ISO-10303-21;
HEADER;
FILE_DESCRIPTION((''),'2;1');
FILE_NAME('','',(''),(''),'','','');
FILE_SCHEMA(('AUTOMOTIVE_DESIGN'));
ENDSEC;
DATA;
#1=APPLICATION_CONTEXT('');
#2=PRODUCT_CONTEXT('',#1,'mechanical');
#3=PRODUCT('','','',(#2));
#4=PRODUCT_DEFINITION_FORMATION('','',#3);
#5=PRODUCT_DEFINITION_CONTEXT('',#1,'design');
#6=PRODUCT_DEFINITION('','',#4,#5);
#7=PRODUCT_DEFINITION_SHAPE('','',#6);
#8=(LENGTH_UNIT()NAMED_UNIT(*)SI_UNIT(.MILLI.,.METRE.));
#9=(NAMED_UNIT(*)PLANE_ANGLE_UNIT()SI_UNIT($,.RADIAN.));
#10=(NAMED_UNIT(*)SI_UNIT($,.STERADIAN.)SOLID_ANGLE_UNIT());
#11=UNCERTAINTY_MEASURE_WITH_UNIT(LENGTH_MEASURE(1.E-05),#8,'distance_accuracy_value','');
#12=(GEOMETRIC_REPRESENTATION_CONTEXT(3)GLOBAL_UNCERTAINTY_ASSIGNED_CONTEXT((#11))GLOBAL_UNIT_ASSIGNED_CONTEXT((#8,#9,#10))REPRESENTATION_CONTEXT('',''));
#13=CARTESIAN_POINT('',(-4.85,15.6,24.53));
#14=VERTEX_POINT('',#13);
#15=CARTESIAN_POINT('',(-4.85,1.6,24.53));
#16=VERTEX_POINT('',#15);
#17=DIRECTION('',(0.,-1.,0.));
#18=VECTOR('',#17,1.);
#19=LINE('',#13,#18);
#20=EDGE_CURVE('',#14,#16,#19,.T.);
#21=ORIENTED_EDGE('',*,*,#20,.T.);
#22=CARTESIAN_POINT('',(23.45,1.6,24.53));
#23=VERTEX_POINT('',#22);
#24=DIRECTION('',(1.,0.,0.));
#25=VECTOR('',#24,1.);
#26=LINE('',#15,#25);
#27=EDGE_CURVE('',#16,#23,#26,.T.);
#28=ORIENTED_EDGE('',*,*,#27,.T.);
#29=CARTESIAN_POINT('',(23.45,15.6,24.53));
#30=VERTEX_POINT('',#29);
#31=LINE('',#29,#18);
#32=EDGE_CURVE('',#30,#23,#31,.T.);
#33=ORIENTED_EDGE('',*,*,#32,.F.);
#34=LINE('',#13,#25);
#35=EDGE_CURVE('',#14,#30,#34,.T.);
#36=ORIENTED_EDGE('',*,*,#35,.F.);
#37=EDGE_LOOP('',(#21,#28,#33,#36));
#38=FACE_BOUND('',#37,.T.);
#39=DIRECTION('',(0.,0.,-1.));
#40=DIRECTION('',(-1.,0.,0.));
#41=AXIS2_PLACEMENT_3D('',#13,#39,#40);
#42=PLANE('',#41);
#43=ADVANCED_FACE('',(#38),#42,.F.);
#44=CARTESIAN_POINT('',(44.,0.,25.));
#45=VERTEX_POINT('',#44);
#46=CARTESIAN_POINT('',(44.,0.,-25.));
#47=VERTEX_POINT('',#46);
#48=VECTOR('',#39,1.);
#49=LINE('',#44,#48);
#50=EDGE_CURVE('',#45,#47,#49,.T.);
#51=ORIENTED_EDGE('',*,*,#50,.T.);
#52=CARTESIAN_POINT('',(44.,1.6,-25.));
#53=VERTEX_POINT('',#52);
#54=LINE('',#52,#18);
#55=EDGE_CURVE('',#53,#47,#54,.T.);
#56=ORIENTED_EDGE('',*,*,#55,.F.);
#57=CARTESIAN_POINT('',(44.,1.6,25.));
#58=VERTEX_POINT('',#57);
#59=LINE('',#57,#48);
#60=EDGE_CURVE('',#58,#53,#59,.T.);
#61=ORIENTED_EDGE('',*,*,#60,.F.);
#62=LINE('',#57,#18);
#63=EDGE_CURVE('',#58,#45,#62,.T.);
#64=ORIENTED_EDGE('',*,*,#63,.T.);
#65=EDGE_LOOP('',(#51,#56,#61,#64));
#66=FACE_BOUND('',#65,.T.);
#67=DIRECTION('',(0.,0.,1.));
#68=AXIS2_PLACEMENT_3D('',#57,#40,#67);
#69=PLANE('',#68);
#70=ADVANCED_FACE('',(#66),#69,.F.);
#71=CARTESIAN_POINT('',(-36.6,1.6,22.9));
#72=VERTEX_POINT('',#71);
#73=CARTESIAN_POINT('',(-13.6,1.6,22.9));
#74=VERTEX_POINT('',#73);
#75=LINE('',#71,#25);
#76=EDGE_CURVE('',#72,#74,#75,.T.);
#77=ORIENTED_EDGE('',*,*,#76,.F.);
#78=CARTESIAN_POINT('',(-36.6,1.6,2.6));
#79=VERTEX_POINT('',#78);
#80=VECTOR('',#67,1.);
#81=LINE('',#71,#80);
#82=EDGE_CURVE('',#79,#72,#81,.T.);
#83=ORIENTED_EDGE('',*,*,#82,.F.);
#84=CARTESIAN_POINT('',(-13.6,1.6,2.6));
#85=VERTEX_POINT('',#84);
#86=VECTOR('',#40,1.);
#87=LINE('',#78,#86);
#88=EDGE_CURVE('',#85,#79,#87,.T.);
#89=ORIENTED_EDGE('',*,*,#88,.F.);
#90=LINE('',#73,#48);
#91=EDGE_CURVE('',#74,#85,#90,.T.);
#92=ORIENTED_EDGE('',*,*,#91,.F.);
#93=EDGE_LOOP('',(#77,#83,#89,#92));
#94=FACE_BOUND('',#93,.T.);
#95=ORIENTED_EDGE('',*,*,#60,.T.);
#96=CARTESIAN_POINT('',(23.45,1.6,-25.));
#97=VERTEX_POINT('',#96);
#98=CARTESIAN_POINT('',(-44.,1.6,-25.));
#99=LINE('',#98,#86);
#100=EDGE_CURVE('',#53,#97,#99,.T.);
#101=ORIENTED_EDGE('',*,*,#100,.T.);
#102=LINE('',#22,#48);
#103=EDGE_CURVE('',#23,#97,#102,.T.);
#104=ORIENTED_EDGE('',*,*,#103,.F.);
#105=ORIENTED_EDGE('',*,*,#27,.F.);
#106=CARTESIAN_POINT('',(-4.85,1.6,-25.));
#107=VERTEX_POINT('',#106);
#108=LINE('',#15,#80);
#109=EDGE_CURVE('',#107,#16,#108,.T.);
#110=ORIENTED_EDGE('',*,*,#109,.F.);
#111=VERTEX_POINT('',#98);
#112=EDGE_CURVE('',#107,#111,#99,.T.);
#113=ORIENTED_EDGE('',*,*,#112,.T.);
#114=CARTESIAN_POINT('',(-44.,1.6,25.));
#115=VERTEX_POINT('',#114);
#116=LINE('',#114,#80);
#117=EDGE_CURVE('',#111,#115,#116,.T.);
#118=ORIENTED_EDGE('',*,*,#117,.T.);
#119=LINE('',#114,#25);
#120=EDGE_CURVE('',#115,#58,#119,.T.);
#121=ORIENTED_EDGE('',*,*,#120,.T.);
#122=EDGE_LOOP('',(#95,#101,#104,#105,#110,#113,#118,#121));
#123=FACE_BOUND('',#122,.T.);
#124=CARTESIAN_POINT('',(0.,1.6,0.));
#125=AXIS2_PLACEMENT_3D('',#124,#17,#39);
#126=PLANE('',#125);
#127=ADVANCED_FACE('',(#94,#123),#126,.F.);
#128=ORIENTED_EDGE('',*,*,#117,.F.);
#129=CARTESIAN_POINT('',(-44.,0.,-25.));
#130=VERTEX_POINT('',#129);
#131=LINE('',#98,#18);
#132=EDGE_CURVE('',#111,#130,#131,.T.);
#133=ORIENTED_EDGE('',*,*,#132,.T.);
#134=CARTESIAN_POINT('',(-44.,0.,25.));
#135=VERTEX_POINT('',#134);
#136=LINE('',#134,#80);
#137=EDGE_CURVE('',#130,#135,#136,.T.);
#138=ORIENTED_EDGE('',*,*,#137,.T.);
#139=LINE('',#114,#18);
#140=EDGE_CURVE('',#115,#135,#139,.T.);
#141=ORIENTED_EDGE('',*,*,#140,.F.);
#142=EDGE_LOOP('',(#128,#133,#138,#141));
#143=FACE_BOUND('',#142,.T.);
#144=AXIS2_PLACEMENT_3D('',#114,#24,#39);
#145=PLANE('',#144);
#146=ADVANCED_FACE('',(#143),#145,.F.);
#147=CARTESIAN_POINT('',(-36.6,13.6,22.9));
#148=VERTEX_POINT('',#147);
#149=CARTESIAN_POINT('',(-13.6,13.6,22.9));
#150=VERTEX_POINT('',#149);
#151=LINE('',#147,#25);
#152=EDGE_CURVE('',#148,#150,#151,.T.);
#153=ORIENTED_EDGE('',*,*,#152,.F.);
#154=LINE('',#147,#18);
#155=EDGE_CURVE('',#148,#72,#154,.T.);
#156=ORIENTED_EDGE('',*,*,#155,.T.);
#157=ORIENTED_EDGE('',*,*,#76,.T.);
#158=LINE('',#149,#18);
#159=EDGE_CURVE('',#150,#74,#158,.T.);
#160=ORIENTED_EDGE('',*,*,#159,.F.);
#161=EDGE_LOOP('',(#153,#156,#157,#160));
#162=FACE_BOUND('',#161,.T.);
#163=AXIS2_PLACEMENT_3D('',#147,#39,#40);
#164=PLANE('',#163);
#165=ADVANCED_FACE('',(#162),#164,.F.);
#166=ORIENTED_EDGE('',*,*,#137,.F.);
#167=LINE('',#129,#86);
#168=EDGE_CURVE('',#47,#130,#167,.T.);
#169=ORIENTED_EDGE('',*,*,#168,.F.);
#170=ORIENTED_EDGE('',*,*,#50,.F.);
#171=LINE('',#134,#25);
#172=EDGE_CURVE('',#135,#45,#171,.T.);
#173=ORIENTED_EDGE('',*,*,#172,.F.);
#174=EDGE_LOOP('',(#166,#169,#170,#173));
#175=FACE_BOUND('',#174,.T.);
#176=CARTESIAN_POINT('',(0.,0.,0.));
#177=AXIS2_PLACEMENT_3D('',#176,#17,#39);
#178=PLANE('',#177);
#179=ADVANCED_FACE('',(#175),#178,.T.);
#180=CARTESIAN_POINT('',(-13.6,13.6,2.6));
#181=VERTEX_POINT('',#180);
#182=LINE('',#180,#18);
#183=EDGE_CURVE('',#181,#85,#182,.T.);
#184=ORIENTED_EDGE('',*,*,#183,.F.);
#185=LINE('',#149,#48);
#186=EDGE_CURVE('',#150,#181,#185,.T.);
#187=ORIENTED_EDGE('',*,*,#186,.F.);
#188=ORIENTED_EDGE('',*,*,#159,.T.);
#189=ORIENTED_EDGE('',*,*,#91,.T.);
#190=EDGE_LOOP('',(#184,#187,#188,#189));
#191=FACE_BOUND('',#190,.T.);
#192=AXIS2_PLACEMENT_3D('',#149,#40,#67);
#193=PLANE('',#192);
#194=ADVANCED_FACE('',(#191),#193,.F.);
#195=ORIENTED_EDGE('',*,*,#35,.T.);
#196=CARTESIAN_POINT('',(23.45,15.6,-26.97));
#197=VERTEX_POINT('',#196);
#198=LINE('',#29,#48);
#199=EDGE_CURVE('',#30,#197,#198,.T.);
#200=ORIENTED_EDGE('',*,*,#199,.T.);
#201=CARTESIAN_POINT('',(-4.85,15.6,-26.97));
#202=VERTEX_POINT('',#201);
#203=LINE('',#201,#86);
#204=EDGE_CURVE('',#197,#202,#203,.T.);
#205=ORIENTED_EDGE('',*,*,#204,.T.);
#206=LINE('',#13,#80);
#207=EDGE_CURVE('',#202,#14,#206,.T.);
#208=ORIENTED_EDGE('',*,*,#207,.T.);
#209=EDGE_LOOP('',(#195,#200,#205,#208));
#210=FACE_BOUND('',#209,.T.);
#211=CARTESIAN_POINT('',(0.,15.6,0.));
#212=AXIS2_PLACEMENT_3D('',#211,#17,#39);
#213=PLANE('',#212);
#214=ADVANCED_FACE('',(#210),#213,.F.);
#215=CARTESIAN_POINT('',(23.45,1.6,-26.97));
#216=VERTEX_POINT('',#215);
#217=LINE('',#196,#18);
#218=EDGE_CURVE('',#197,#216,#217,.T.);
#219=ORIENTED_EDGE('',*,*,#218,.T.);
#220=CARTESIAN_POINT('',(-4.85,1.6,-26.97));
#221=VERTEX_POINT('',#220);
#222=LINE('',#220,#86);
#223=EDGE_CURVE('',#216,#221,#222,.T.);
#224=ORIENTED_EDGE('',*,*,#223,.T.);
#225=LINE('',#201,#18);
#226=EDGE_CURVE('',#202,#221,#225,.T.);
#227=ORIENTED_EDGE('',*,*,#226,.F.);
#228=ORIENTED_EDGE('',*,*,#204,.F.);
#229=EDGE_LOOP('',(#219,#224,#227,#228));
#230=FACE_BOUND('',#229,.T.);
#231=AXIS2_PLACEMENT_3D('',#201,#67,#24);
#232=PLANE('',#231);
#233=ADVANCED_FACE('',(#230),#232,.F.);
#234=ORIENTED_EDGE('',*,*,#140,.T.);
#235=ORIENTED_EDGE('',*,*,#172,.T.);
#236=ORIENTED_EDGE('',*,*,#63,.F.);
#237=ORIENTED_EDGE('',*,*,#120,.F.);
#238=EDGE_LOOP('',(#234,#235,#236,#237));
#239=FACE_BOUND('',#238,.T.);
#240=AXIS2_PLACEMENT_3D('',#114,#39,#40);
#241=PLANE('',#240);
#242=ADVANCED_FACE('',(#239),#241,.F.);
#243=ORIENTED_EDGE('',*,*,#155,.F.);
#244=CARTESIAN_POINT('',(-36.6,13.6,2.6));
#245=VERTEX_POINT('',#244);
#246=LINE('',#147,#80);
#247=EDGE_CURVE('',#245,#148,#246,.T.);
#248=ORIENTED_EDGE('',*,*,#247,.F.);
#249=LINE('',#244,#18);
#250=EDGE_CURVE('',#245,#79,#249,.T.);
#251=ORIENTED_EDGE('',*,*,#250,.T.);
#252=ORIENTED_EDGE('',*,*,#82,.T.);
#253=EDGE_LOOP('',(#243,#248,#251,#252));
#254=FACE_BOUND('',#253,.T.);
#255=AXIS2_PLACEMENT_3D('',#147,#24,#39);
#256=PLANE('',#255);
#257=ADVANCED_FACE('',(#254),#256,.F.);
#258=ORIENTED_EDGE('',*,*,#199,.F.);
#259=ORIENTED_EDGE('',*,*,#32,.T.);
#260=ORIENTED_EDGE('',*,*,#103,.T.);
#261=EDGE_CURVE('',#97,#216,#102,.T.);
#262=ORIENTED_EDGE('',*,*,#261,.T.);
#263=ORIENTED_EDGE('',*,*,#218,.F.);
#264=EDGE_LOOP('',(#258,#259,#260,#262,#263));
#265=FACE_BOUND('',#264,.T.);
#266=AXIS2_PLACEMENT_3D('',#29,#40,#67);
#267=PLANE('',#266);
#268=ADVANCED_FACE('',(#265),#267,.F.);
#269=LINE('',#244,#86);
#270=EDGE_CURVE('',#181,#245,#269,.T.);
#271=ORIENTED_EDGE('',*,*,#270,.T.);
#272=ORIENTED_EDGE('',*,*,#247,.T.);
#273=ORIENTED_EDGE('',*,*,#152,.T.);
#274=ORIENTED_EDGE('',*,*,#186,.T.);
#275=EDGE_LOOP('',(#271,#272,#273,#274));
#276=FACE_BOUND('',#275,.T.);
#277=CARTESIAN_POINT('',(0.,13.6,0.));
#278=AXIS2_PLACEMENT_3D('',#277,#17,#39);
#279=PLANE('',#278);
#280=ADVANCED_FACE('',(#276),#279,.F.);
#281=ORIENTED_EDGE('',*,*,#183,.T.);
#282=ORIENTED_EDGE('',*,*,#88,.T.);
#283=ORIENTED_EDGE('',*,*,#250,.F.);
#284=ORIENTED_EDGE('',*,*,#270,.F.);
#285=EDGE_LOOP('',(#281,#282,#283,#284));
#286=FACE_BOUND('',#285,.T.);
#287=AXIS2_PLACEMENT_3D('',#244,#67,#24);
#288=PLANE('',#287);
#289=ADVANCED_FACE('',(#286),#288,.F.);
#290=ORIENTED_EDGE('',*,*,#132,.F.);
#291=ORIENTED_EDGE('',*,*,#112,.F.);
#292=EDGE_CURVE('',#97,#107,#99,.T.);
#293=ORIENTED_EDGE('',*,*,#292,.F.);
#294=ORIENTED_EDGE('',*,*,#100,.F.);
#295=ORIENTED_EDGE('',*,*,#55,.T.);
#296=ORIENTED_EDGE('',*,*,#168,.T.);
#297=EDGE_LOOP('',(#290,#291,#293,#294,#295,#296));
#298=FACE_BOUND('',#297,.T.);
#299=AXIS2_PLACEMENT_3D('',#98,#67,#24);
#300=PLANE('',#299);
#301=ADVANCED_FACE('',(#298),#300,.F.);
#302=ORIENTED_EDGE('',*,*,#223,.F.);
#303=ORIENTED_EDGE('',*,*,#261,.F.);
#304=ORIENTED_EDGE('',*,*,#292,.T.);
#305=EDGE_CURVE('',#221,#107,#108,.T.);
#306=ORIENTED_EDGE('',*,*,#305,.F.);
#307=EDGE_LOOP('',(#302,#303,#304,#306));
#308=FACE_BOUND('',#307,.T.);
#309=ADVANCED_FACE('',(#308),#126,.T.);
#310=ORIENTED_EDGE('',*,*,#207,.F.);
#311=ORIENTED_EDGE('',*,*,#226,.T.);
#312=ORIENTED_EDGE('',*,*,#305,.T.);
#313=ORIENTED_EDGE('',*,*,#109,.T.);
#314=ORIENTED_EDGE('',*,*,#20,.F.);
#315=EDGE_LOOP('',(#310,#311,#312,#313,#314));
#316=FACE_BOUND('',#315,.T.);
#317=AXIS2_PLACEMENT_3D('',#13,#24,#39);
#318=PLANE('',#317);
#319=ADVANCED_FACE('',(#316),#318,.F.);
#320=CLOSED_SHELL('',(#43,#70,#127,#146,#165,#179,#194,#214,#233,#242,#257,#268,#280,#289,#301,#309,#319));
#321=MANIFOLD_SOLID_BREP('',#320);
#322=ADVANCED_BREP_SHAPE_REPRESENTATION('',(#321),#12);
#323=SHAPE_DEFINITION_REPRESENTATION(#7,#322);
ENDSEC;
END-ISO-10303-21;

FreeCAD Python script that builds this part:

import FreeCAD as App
import Part
import Sketcher
Q = App.Units.Quantity

doc = App.newDocument("Part")
body = doc.addObject("PartDesign::Body", "Body")

# Sketch on XZ plane
sketch1 = body.newObject("Sketcher::SketchObject", "Sketch")
sketch1.AttachmentSupport = (doc.getObject("XZ_Plane"), [""])
sketch1.MapMode = "FlatFace"
sketch1.addGeometry([
    Part.LineSegment(App.Vector(-44, -25, 0), App.Vector(-44, 25, 0)),
    Part.LineSegment(App.Vector(-44, 25, 0), App.Vector(44, 25, 0)),
    Part.LineSegment(App.Vector(44, 25, 0), App.Vector(44, -25, 0)),
    Part.LineSegment(App.Vector(44, -25, 0), App.Vector(-44, -25, 0)),
], False)
sketch1.addConstraint([
    Sketcher.Constraint("Coincident", 0, 2, 1, 1),
    Sketcher.Constraint("Coincident", 1, 2, 2, 1),
    Sketcher.Constraint("Coincident", 2, 2, 3, 1),
    Sketcher.Constraint("Coincident", 3, 2, 0, 1),
    Sketcher.Constraint("Vertical", 0),
    Sketcher.Constraint("Horizontal", 1),
    Sketcher.Constraint("Vertical", 2),
    Sketcher.Constraint("Horizontal", 3),
    Sketcher.Constraint("Symmetric", 0, 2, 2, 2, -1, 1),
    Sketcher.Constraint("DistanceX", 1, 1, 1, 2, Q("88 mm")),
    Sketcher.Constraint("DistanceY", 0, 1, 0, 2, Q("50 mm")),
])
pad1 = body.newObject("PartDesign::Pad", "Pad")
pad1.Profile = sketch1
pad1.Length = 1.6
pad1.Reversed = True

# Sketch on XZ plane
sketch2 = body.newObject("Sketcher::SketchObject", "Sketch001")
sketch2.AttachmentSupport = (doc.getObject("XZ_Plane"), [""])
sketch2.MapMode = "FlatFace"
sketch2.AttachmentOffset = App.Placement(App.Vector(0, 0, -1.6), App.Rotation())
sketch2.addGeometry([
    Part.LineSegment(App.Vector(-4.85, -26.97, 0), App.Vector(-4.85, 24.53, 0)),
    Part.LineSegment(App.Vector(-4.85, 24.53, 0), App.Vector(23.45, 24.53, 0)),
    Part.LineSegment(App.Vector(23.45, 24.53, 0), App.Vector(23.45, -26.97, 0)),
    Part.LineSegment(App.Vector(23.45, -26.97, 0), App.Vector(-4.85, -26.97, 0)),
], False)
sketch2.addConstraint([
    Sketcher.Constraint("Coincident", 0, 2, 1, 1),
    Sketcher.Constraint("Coincident", 1, 2, 2, 1),
    Sketcher.Constraint("Coincident", 2, 2, 3, 1),
    Sketcher.Constraint("Coincident", 3, 2, 0, 1),
    Sketcher.Constraint("Vertical", 0),
    Sketcher.Constraint("Horizontal", 1),
    Sketcher.Constraint("Vertical", 2),
    Sketcher.Constraint("Horizontal", 3),
    Sketcher.Constraint("DistanceX", 1, 1, 1, 2, Q("28.3 mm")),
    Sketcher.Constraint("DistanceY", 0, 1, 0, 2, Q("51.5 mm")),
    Sketcher.Constraint("DistanceX", 0, 2, -1, 1, Q("4.85 mm")),
    Sketcher.Constraint("DistanceY", -1, 1, 0, 2, Q("24.53 mm")),
])
pad2 = body.newObject("PartDesign::Pad", "Pad001")
pad2.Profile = sketch2
pad2.Length = 14
pad2.Reversed = True

# Sketch on XZ plane
sketch3 = body.newObject("Sketcher::SketchObject", "Sketch002")
sketch3.AttachmentSupport = (doc.getObject("XZ_Plane"), [""])
sketch3.MapMode = "FlatFace"
sketch3.AttachmentOffset = App.Placement(App.Vector(0, 0, -1.6), App.Rotation())
sketch3.addGeometry([
    Part.LineSegment(App.Vector(-36.6, 2.6, 0), App.Vector(-36.6, 22.9, 0)),
    Part.LineSegment(App.Vector(-36.6, 22.9, 0), App.Vector(-13.6, 22.9, 0)),
    Part.LineSegment(App.Vector(-13.6, 22.9, 0), App.Vector(-13.6, 2.6, 0)),
    Part.LineSegment(App.Vector(-13.6, 2.6, 0), App.Vector(-36.6, 2.6, 0)),
], False)
sketch3.addConstraint([
    Sketcher.Constraint("Coincident", 0, 2, 1, 1),
    Sketcher.Constraint("Coincident", 1, 2, 2, 1),
    Sketcher.Constraint("Coincident", 2, 2, 3, 1),
    Sketcher.Constraint("Coincident", 3, 2, 0, 1),
    Sketcher.Constraint("Vertical", 0),
    Sketcher.Constraint("Horizontal", 1),
    Sketcher.Constraint("Vertical", 2),
    Sketcher.Constraint("Horizontal", 3),
    Sketcher.Constraint("DistanceX", 1, 1, 1, 2, Q("23 mm")),
    Sketcher.Constraint("DistanceY", 0, 1, 0, 2, Q("20.3 mm")),
    Sketcher.Constraint("DistanceX", 0, 2, -1, 1, Q("36.6 mm")),
    Sketcher.Constraint("DistanceY", -1, 1, 0, 2, Q("22.9 mm")),
])
pad3 = body.newObject("PartDesign::Pad", "Pad002")
pad3.Profile = sketch3
pad3.Length = 12
pad3.Reversed = True

doc.recompute()
